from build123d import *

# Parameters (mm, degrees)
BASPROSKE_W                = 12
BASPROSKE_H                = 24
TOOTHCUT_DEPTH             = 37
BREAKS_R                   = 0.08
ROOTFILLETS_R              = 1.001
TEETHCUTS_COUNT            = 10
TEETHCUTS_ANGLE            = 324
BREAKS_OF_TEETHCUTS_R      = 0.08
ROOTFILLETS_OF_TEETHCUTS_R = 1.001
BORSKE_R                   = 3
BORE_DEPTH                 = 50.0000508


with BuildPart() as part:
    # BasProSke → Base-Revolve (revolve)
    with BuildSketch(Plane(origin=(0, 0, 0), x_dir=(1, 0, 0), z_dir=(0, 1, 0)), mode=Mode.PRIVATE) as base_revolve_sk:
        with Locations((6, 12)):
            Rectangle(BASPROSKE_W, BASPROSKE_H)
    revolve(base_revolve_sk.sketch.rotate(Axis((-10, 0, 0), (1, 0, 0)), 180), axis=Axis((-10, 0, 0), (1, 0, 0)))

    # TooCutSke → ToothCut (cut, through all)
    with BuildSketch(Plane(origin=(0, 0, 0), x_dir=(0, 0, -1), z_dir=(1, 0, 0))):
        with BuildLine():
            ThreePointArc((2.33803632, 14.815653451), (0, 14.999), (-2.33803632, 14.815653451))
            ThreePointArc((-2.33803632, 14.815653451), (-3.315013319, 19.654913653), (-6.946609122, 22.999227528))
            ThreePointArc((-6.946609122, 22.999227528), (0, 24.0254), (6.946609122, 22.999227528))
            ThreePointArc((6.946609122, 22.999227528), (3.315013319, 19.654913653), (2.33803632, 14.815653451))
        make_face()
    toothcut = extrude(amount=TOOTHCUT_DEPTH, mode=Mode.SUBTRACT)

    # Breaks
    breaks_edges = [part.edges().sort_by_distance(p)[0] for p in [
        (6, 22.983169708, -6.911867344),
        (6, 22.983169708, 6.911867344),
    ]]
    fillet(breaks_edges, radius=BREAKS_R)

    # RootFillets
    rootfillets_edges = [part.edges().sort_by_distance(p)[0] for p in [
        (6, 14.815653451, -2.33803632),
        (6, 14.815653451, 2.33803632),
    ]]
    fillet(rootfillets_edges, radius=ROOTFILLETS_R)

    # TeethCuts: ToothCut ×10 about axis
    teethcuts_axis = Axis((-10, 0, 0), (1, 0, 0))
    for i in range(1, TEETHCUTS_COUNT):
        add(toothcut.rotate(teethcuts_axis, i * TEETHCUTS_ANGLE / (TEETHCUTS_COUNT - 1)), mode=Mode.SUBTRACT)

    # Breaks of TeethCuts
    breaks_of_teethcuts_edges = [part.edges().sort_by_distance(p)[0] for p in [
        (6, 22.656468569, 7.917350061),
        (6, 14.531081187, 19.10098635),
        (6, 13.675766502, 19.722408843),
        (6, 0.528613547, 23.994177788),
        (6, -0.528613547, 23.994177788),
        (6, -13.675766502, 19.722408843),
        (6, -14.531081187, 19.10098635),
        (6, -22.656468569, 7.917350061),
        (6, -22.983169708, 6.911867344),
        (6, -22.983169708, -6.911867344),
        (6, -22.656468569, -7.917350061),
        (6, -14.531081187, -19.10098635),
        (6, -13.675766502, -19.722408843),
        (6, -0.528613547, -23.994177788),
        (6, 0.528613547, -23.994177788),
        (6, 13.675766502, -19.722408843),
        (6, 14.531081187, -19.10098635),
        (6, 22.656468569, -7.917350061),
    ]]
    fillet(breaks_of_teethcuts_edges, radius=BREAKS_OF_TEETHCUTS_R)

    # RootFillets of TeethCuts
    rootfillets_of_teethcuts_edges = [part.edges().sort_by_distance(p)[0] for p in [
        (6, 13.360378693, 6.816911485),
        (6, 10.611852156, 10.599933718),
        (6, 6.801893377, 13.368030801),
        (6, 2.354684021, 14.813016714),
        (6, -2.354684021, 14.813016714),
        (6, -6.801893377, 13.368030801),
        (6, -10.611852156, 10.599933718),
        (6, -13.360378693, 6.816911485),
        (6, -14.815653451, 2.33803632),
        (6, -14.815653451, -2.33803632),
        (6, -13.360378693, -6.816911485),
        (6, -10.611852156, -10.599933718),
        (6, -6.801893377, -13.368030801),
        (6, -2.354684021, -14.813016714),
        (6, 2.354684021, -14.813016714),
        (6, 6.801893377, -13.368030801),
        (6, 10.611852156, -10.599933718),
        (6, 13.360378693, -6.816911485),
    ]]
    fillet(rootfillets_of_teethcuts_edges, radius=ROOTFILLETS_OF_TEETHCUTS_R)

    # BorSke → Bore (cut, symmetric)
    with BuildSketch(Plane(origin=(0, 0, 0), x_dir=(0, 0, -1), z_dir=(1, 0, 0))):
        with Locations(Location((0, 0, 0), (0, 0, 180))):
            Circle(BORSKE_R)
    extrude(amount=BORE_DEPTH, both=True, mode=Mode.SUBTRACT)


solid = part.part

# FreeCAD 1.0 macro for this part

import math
import FreeCAD as App
import Part
import Sketcher
from FreeCAD import Vector
Q = App.Units.Quantity


def edges_at(feature, points):
    """Names of the edges that pass closest to the given points."""
    edges = feature.Shape.Edges
    near = lambda p: min(range(len(edges)), key=lambda i: edges[i].distToShape(Part.Vertex(*p))[0])
    return sorted({f"Edge{near(p) + 1}" for p in points})


def add_polygon(sketch, points):
    """Adds a closed chain of lines whose ends are joined by coincident constraints."""
    first, n = sketch.GeometryCount, len(points)
    for a, b in zip(points, points[1:] + points[:1]):
        sketch.addGeometry(Part.LineSegment(App.Vector(*a, 0), App.Vector(*b, 0)), False)
    for i in range(n):
        sketch.addConstraint(Sketcher.Constraint("Coincident", first + i, 2, first + (i + 1) % n, 1))

doc = App.newDocument("Part")
body = doc.addObject("PartDesign::Body", "Body")

sketch1 = body.newObject("Sketcher::SketchObject", "Sketch")
sketch1.AttachmentSupport = (doc.getObject("XZ_Plane"), [""])
sketch1.MapMode = "FlatFace"
add_polygon(sketch1, [(0, -24), (0, 0), (12, 0), (12, -24)])
sketch1.addConstraint([
    Sketcher.Constraint("Vertical", 0),
    Sketcher.Constraint("Horizontal", 1),
    Sketcher.Constraint("Vertical", 2),
    Sketcher.Constraint("Horizontal", 3),
    Sketcher.Constraint("Coincident", 0, 2, -1, 1),
    Sketcher.Constraint("DistanceX", 1, 1, 1, 2, Q("12 mm")),
    Sketcher.Constraint("DistanceY", 0, 1, 0, 2, Q("24 mm")),
])
revolution = body.newObject("PartDesign::Revolution", "Revolution")
revolution.Profile = sketch1
revolution.ReferenceAxis = (sketch1, ["H_Axis"])
revolution.Angle = 360

sketch2 = body.newObject("Sketcher::SketchObject", "Sketch001")
sketch2.AttachmentSupport = (doc.getObject("YZ_Plane"), [""])
sketch2.MapMode = "FlatFace"
sketch2.addGeometry([
    Part.ArcOfCircle(Part.Circle(Vector(0, 0, 0), Vector(0, 0, 1), 15), math.radians(-8.97), math.radians(8.97)),
    Part.ArcOfCircle(Part.Circle(Vector(15.7, -10.3, 0), Vector(0, 0, 1), 8), math.radians(25), math.radians(97)),
    Part.ArcOfCircle(Part.Circle(Vector(0, 0, 0), Vector(0, 0, 1), 24), math.radians(-17), math.radians(17)),
    Part.ArcOfCircle(Part.Circle(Vector(15.7, 10.3, 0), Vector(0, 0, 1), 8), math.radians(-97), math.radians(-25)),
], False)
sketch2.addConstraint([
    Sketcher.Constraint("Coincident", 0, 1, 1, 2),
    Sketcher.Constraint("Coincident", 1, 1, 2, 1),
    Sketcher.Constraint("Coincident", 2, 2, 3, 2),
    Sketcher.Constraint("Coincident", 3, 1, 0, 2),
    Sketcher.Constraint("Coincident", 0, 3, -1, 1),
    Sketcher.Constraint("Coincident", 2, 3, -1, 1),
    Sketcher.Constraint("Equal", 1, 3),
    Sketcher.Constraint("Symmetric", 1, 3, 3, 3, -1),
    Sketcher.Constraint("Radius", 1, Q("8 mm")),
    Sketcher.Constraint("Radius", 0, Q("14.999 mm")),
    Sketcher.Constraint("Radius", 2, Q("24.0254 mm")),
    Sketcher.Constraint("DistanceY", 1, 1, -1, 1, Q("6.946609 mm")),
    Sketcher.Constraint("DistanceY", 0, 1, 3, 3, Q("12.62372 mm")),
])
pocket1 = body.newObject("PartDesign::Pocket", "Pocket")
pocket1.Profile = sketch2
pocket1.Type = "ThroughAll"
pocket1.Reversed = True
doc.recompute()

fillet = body.newObject("PartDesign::Fillet", "Fillet")
fillet.Base = (pocket1, edges_at(pocket1, [(6, 22.983, -6.912), (6, 22.983, 6.912)]))
fillet.Radius = 0.08
doc.recompute()

fillet2 = body.newObject("PartDesign::Fillet", "Fillet001")
fillet2.Base = (fillet, edges_at(fillet, [(6, 14.816, -2.338), (6, 14.816, 2.338)]))
fillet2.Radius = 1.001
doc.recompute()

polarpattern = body.newObject("PartDesign::PolarPattern", "PolarPattern")
polarpattern.Originals = [pocket1]
polarpattern.Axis = (doc.getObject("X_Axis"), [""])
polarpattern.Angle = 360
polarpattern.Occurrences = 10
body.Tip = polarpattern
doc.recompute()

fillet3 = body.newObject("PartDesign::Fillet", "Fillet002")
fillet3.Base = (polarpattern, edges_at(polarpattern, [
    (6, 22.656, 7.917),
    (6, 14.531, 19.101),
    (6, 13.676, 19.722),
    (6, 0.529, 23.994),
    (6, -0.529, 23.994),
    (6, -13.676, 19.722),
    (6, -14.531, 19.101),
    (6, -22.656, 7.917),
    (6, -22.983, 6.912),
    (6, -22.983, -6.912),
    (6, -22.656, -7.917),
    (6, -14.531, -19.101),
    (6, -13.676, -19.722),
    (6, -0.529, -23.994),
    (6, 0.529, -23.994),
    (6, 13.676, -19.722),
    (6, 14.531, -19.101),
    (6, 22.656, -7.917),
]))
fillet3.Radius = 0.08
doc.recompute()

fillet4 = body.newObject("PartDesign::Fillet", "Fillet003")
fillet4.Base = (fillet3, edges_at(fillet3, [
    (6, 13.36, 6.817),
    (6, 10.612, 10.6),
    (6, 6.802, 13.368),
    (6, 2.355, 14.813),
    (6, -2.355, 14.813),
    (6, -6.802, 13.368),
    (6, -10.612, 10.6),
    (6, -13.36, 6.817),
    (6, -14.816, 2.338),
    (6, -14.816, -2.338),
    (6, -13.36, -6.817),
    (6, -10.612, -10.6),
    (6, -6.802, -13.368),
    (6, -2.355, -14.813),
    (6, 2.355, -14.813),
    (6, 6.802, -13.368),
    (6, 10.612, -10.6),
    (6, 13.36, -6.817),
]))
fillet4.Radius = 1.001

sketch3 = body.newObject("Sketcher::SketchObject", "Sketch002")
sketch3.AttachmentSupport = (doc.getObject("YZ_Plane"), [""])
sketch3.MapMode = "FlatFace"
sketch3.addGeometry(Part.Circle(Vector(0, 0, 0), Vector(0, 0, 1), 3), False)
sketch3.addConstraint([
    Sketcher.Constraint("Coincident", 0, 3, -1, 1),
    Sketcher.Constraint("Diameter", 0, Q("6 mm")),
])
pocket2 = body.newObject("PartDesign::Pocket", "Pocket001")
pocket2.Profile = sketch3
pocket2.Length = 100.000102
pocket2.Midplane = True

doc.recompute()
